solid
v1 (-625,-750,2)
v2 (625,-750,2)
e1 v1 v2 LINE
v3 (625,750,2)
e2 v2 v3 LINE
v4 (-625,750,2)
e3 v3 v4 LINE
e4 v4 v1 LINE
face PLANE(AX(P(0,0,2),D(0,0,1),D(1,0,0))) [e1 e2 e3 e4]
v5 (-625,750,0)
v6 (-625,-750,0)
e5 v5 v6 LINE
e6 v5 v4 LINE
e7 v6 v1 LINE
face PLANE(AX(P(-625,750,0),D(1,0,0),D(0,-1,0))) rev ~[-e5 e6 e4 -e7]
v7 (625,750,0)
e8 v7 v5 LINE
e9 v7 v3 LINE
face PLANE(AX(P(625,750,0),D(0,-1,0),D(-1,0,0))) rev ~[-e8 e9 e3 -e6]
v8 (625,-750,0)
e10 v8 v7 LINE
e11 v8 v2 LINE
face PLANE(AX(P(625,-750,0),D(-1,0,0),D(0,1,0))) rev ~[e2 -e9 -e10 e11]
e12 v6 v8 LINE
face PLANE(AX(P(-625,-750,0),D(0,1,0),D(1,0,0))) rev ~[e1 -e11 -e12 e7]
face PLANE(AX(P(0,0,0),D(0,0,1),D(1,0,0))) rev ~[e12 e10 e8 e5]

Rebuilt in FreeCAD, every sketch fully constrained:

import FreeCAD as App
import Part
import Sketcher
from FreeCAD import Vector

doc = App.newDocument("Part")
params = doc.addObject("Spreadsheet::Sheet", "Params")
for row, (alias, value) in enumerate([
    ("sketch1_width", "1250 mm"),
    ("sketch1_height", "1500 mm"),
    ("pad1_length", "2 mm"),
], start=1):
    params.set(f"A{row}", alias)
    params.set(f"B{row}", "=" + value)
    params.setAlias(f"B{row}", alias)

body = doc.addObject("PartDesign::Body", "Body")

sketch1 = body.newObject("Sketcher::SketchObject", "Sketch")
sketch1.AttachmentSupport = (doc.getObject("XY_Plane"), [""])
sketch1.MapMode = "FlatFace"
sketch1.addGeometry(Part.LineSegment(Vector(-625, -750, 0), Vector(625, -750, 0)), False)
sketch1.addGeometry(Part.LineSegment(Vector(625, -750, 0), Vector(625, 750, 0)), False)
sketch1.addGeometry(Part.LineSegment(Vector(625, 750, 0), Vector(-625, 750, 0)), False)
sketch1.addGeometry(Part.LineSegment(Vector(-625, 750, 0), Vector(-625, -750, 0)), False)
sketch1.addConstraint(Sketcher.Constraint("Coincident", 0, 2, 1, 1))
sketch1.addConstraint(Sketcher.Constraint("Coincident", 1, 2, 2, 1))
sketch1.addConstraint(Sketcher.Constraint("Coincident", 2, 2, 3, 1))
sketch1.addConstraint(Sketcher.Constraint("Coincident", 3, 2, 0, 1))
sketch1.addConstraint(Sketcher.Constraint("Horizontal", 0))
sketch1.addConstraint(Sketcher.Constraint("Vertical", 1))
sketch1.addConstraint(Sketcher.Constraint("Horizontal", 2))
sketch1.addConstraint(Sketcher.Constraint("Vertical", 3))
sketch1.addConstraint(Sketcher.Constraint("Symmetric", 0, 2, 2, 2, -1, 1))
sketch1.addConstraint(Sketcher.Constraint("DistanceX", 0, 1, 0, 2, 1250.0))
sketch1.addConstraint(Sketcher.Constraint("DistanceY", 1, 1, 1, 2, 1500.0))
sketch1.setExpression("Constraints[9]", "Params.sketch1_width")
sketch1.setExpression("Constraints[10]", "Params.sketch1_height")
pad1 = body.newObject("PartDesign::Pad", "Pad")
pad1.Profile = sketch1
pad1.setExpression("Length", "Params.pad1_length")

doc.recompute()
